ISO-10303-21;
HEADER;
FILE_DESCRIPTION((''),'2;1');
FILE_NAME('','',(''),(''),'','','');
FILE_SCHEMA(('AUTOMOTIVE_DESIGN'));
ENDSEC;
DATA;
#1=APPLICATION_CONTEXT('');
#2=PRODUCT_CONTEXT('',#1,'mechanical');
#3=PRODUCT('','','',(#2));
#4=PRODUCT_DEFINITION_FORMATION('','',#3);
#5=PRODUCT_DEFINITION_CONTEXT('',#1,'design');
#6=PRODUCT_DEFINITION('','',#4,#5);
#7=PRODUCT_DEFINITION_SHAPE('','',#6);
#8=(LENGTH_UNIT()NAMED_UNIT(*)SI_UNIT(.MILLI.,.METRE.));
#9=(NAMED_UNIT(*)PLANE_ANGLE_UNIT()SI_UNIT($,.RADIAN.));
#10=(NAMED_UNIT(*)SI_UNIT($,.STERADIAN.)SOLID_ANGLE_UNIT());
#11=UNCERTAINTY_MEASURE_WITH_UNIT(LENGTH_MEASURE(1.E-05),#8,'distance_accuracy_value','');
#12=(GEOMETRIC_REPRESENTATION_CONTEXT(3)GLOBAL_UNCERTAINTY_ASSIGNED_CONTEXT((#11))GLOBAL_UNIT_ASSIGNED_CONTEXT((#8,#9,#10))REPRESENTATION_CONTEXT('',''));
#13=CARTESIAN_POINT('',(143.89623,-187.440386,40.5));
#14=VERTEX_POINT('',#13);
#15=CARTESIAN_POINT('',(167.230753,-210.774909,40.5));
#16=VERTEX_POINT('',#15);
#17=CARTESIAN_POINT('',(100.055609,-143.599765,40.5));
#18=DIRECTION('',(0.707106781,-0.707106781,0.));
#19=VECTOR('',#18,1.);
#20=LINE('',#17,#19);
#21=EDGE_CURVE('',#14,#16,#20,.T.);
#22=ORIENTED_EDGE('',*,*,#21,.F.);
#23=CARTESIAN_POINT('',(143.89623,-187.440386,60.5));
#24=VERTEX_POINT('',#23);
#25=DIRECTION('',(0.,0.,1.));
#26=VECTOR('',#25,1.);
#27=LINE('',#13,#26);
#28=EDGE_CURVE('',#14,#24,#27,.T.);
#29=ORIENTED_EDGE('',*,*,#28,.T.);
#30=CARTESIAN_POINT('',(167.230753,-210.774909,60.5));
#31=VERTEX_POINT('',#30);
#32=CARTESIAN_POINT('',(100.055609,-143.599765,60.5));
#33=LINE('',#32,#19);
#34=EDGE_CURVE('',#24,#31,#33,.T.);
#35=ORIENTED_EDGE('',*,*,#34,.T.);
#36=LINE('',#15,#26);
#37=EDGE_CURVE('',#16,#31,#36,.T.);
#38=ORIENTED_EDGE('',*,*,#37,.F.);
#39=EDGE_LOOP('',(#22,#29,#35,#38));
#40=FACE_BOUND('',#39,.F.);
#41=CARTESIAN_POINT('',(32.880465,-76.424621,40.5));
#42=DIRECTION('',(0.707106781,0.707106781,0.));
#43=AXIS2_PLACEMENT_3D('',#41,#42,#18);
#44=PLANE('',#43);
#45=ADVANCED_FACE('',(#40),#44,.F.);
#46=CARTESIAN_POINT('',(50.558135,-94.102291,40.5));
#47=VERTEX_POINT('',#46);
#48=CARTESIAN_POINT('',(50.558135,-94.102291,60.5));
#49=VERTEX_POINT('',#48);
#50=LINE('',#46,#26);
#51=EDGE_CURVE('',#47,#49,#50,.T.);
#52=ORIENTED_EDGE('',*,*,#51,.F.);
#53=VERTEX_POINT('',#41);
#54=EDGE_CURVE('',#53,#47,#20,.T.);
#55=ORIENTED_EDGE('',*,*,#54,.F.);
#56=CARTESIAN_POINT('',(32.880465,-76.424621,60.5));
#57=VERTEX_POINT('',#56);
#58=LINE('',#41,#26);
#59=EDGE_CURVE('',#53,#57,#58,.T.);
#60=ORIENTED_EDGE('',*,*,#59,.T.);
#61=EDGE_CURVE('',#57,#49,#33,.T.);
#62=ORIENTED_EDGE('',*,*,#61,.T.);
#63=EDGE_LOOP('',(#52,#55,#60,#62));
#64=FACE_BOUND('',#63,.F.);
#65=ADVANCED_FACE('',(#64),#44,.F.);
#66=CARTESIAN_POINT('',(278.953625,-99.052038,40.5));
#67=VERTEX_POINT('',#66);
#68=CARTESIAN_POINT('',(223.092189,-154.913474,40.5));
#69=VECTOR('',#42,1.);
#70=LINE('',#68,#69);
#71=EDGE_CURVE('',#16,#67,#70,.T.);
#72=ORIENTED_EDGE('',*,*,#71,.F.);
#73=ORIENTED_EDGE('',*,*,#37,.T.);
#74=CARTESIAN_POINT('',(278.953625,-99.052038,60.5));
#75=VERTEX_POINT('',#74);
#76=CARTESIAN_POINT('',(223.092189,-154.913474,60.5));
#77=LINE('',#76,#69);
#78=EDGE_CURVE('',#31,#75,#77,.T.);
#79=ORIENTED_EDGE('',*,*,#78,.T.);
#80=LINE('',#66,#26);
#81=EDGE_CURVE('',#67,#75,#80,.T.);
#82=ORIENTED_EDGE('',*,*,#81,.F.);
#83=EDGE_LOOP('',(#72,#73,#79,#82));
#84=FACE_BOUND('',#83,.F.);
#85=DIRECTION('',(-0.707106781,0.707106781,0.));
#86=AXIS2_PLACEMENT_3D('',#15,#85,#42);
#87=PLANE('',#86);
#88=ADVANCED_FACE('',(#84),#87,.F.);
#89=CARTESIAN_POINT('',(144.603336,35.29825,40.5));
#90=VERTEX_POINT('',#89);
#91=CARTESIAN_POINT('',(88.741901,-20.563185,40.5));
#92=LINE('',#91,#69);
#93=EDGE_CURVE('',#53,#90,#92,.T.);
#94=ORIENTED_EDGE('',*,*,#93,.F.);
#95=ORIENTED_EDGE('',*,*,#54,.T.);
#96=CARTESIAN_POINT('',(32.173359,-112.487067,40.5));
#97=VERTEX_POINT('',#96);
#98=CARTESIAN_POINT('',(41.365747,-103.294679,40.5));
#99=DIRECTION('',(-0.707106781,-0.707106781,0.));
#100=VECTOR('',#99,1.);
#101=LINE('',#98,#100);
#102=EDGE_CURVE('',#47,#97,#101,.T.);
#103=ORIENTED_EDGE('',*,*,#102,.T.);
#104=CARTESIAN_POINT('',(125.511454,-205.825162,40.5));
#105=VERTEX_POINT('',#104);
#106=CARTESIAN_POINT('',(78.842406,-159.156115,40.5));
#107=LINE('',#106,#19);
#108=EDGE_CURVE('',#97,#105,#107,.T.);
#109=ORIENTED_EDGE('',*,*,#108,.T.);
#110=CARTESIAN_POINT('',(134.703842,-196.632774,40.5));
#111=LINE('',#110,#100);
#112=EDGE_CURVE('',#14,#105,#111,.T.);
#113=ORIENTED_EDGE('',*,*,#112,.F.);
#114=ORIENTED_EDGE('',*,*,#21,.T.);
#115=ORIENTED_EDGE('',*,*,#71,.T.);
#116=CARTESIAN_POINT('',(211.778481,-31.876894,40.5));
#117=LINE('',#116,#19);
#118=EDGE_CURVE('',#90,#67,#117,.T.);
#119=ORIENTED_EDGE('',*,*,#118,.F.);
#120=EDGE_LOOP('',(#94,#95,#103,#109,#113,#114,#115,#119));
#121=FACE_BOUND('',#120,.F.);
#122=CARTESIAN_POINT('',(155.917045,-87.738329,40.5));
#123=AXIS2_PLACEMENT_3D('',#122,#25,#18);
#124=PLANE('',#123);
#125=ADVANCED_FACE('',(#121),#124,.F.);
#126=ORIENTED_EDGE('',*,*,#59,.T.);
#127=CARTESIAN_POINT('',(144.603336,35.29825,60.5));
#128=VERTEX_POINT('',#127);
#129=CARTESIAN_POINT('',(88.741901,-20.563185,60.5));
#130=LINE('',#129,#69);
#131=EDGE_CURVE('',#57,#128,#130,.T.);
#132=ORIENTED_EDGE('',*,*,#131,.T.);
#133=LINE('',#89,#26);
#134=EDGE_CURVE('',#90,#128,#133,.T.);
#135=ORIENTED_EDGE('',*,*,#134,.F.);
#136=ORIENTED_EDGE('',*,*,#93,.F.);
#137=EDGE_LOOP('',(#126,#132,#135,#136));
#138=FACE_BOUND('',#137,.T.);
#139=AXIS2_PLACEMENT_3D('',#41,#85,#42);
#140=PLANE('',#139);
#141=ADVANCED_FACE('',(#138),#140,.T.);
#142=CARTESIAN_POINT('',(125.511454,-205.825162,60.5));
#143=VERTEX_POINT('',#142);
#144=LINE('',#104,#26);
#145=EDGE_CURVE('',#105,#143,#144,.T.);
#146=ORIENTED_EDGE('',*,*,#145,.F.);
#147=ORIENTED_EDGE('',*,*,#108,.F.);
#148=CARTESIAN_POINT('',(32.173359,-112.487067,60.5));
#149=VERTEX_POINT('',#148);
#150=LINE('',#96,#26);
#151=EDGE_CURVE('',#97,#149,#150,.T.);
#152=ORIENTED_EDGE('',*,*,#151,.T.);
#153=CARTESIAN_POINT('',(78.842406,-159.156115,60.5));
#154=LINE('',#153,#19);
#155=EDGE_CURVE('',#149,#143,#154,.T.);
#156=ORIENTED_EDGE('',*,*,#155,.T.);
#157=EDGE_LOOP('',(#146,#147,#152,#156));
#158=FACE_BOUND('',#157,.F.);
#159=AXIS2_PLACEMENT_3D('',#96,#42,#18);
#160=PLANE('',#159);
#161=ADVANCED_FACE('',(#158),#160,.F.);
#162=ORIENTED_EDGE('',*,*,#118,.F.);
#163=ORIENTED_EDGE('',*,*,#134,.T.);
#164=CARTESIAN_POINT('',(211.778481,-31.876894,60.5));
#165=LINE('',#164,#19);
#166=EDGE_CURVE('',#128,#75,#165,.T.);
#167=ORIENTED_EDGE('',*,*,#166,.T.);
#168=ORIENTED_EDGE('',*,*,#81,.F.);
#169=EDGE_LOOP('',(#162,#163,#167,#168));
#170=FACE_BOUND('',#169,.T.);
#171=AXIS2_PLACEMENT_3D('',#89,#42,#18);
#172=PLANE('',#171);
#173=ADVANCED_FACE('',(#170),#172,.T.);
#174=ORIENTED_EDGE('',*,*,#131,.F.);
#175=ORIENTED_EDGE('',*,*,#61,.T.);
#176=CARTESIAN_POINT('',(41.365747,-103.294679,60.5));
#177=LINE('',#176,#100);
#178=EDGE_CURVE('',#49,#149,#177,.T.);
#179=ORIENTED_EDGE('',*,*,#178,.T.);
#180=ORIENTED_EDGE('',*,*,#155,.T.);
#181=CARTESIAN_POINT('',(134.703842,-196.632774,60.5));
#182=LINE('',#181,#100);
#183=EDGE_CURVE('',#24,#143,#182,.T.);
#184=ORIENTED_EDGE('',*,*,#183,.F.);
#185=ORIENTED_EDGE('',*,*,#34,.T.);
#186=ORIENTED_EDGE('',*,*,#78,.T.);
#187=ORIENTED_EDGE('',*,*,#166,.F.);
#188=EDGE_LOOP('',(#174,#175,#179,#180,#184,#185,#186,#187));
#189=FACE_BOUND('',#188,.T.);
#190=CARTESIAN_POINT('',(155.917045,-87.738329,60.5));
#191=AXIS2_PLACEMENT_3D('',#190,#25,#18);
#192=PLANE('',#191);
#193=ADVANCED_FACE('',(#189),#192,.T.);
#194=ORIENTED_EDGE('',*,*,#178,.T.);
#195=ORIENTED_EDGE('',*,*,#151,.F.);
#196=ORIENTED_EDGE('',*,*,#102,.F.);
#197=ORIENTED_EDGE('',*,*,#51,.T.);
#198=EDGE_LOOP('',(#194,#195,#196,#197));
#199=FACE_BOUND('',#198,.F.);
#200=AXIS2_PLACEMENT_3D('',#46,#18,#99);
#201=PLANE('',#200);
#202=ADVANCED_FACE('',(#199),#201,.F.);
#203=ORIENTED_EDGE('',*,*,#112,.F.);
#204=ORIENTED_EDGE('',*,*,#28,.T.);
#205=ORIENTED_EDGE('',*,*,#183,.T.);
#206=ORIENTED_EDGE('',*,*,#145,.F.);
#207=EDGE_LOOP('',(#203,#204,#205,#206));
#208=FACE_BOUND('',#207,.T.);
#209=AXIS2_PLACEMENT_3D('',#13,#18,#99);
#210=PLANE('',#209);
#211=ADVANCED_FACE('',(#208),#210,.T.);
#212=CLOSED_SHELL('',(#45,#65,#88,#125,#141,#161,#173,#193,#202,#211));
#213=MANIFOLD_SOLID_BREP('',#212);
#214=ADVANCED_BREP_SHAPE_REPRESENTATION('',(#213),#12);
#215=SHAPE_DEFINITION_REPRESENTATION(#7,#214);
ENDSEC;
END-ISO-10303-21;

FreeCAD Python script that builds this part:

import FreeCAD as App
import Part
import Sketcher
Q = App.Units.Quantity

doc = App.newDocument("Part")
body = doc.addObject("PartDesign::Body", "Body")

# Sketch on XY plane
sketch1 = body.newObject("Sketcher::SketchObject", "Sketch")
sketch1.AttachmentSupport = (doc.getObject("XY_Plane"), [""])
sketch1.MapMode = "FlatFace"
sketch1.addGeometry([
    Part.LineSegment(App.Vector(0, 132, 0), App.Vector(0, 0, 0)),
    Part.LineSegment(App.Vector(0, 0, 0), App.Vector(26, 0, 0)),
    Part.LineSegment(App.Vector(26, 0, 0), App.Vector(26, 132, 0)),
    Part.LineSegment(App.Vector(26, 132, 0), App.Vector(0, 132, 0)),
], False)
sketch1.addConstraint([
    Sketcher.Constraint("Coincident", 0, 2, 1, 1),
    Sketcher.Constraint("Coincident", 1, 2, 2, 1),
    Sketcher.Constraint("Coincident", 2, 2, 3, 1),
    Sketcher.Constraint("Coincident", 3, 2, 0, 1),
    Sketcher.Constraint("Vertical", 0),
    Sketcher.Constraint("Horizontal", 1),
    Sketcher.Constraint("Vertical", 2),
    Sketcher.Constraint("Horizontal", 3),
    Sketcher.Constraint("Coincident", 0, 2, -1, 1),
    Sketcher.Constraint("DistanceX", 1, 1, 1, 2, Q("26 mm")),
    Sketcher.Constraint("DistanceY", 0, 2, 0, 1, Q("132 mm")),
])
pad1 = body.newObject("PartDesign::Pad", "Pad")
pad1.Profile = sketch1
pad1.Length = 20
body2 = doc.addObject("PartDesign::Body", "Body001")
doc.recompute()

body.Placement = App.Placement(App.Vector(50.558135, -94.102291, 40.5), App.Rotation(App.Vector(0, 0, -1), 135))
boolean = body2.newObject("PartDesign::Boolean", "Boolean")
boolean.Type = "Fuse"
boolean.addObjects([body])
body3 = doc.addObject("PartDesign::Body", "Body002")

# Sketch on XY plane
sketch2 = body3.newObject("Sketcher::SketchObject", "Sketch001")
sketch2.AttachmentSupport = (doc.getObject("XY_Plane002"), [""])
sketch2.MapMode = "FlatFace"
sketch2.addGeometry([
    Part.LineSegment(App.Vector(0, 158, 0), App.Vector(0, 0, 0)),
    Part.LineSegment(App.Vector(0, 0, 0), App.Vector(190, 0, 0)),
    Part.LineSegment(App.Vector(190, 0, 0), App.Vector(190, 158, 0)),
    Part.LineSegment(App.Vector(190, 158, 0), App.Vector(0, 158, 0)),
], False)
sketch2.addConstraint([
    Sketcher.Constraint("Coincident", 0, 2, 1, 1),
    Sketcher.Constraint("Coincident", 1, 2, 2, 1),
    Sketcher.Constraint("Coincident", 2, 2, 3, 1),
    Sketcher.Constraint("Coincident", 3, 2, 0, 1),
    Sketcher.Constraint("Vertical", 0),
    Sketcher.Constraint("Horizontal", 1),
    Sketcher.Constraint("Vertical", 2),
    Sketcher.Constraint("Horizontal", 3),
    Sketcher.Constraint("Coincident", 0, 2, -1, 1),
    Sketcher.Constraint("DistanceX", 1, 1, 1, 2, Q("190 mm")),
    Sketcher.Constraint("DistanceY", 0, 2, 0, 1, Q("158 mm")),
])
pad2 = body3.newObject("PartDesign::Pad", "Pad001")
pad2.Profile = sketch2
pad2.Length = 20
body4 = doc.addObject("PartDesign::Body", "Body003")
doc.recompute()

body3.Placement = App.Placement(App.Vector(32.880465, -76.424621, 40.5), App.Rotation(App.Vector(0, 0, 1), 315))
boolean2 = body4.newObject("PartDesign::Boolean", "Boolean001")
boolean2.Type = "Fuse"
boolean2.addObjects([body3])
doc.recompute()

boolean3 = body4.newObject("PartDesign::Boolean", "Boolean002")
boolean3.Type = "Fuse"
boolean3.addObjects([body2])

doc.recompute()
